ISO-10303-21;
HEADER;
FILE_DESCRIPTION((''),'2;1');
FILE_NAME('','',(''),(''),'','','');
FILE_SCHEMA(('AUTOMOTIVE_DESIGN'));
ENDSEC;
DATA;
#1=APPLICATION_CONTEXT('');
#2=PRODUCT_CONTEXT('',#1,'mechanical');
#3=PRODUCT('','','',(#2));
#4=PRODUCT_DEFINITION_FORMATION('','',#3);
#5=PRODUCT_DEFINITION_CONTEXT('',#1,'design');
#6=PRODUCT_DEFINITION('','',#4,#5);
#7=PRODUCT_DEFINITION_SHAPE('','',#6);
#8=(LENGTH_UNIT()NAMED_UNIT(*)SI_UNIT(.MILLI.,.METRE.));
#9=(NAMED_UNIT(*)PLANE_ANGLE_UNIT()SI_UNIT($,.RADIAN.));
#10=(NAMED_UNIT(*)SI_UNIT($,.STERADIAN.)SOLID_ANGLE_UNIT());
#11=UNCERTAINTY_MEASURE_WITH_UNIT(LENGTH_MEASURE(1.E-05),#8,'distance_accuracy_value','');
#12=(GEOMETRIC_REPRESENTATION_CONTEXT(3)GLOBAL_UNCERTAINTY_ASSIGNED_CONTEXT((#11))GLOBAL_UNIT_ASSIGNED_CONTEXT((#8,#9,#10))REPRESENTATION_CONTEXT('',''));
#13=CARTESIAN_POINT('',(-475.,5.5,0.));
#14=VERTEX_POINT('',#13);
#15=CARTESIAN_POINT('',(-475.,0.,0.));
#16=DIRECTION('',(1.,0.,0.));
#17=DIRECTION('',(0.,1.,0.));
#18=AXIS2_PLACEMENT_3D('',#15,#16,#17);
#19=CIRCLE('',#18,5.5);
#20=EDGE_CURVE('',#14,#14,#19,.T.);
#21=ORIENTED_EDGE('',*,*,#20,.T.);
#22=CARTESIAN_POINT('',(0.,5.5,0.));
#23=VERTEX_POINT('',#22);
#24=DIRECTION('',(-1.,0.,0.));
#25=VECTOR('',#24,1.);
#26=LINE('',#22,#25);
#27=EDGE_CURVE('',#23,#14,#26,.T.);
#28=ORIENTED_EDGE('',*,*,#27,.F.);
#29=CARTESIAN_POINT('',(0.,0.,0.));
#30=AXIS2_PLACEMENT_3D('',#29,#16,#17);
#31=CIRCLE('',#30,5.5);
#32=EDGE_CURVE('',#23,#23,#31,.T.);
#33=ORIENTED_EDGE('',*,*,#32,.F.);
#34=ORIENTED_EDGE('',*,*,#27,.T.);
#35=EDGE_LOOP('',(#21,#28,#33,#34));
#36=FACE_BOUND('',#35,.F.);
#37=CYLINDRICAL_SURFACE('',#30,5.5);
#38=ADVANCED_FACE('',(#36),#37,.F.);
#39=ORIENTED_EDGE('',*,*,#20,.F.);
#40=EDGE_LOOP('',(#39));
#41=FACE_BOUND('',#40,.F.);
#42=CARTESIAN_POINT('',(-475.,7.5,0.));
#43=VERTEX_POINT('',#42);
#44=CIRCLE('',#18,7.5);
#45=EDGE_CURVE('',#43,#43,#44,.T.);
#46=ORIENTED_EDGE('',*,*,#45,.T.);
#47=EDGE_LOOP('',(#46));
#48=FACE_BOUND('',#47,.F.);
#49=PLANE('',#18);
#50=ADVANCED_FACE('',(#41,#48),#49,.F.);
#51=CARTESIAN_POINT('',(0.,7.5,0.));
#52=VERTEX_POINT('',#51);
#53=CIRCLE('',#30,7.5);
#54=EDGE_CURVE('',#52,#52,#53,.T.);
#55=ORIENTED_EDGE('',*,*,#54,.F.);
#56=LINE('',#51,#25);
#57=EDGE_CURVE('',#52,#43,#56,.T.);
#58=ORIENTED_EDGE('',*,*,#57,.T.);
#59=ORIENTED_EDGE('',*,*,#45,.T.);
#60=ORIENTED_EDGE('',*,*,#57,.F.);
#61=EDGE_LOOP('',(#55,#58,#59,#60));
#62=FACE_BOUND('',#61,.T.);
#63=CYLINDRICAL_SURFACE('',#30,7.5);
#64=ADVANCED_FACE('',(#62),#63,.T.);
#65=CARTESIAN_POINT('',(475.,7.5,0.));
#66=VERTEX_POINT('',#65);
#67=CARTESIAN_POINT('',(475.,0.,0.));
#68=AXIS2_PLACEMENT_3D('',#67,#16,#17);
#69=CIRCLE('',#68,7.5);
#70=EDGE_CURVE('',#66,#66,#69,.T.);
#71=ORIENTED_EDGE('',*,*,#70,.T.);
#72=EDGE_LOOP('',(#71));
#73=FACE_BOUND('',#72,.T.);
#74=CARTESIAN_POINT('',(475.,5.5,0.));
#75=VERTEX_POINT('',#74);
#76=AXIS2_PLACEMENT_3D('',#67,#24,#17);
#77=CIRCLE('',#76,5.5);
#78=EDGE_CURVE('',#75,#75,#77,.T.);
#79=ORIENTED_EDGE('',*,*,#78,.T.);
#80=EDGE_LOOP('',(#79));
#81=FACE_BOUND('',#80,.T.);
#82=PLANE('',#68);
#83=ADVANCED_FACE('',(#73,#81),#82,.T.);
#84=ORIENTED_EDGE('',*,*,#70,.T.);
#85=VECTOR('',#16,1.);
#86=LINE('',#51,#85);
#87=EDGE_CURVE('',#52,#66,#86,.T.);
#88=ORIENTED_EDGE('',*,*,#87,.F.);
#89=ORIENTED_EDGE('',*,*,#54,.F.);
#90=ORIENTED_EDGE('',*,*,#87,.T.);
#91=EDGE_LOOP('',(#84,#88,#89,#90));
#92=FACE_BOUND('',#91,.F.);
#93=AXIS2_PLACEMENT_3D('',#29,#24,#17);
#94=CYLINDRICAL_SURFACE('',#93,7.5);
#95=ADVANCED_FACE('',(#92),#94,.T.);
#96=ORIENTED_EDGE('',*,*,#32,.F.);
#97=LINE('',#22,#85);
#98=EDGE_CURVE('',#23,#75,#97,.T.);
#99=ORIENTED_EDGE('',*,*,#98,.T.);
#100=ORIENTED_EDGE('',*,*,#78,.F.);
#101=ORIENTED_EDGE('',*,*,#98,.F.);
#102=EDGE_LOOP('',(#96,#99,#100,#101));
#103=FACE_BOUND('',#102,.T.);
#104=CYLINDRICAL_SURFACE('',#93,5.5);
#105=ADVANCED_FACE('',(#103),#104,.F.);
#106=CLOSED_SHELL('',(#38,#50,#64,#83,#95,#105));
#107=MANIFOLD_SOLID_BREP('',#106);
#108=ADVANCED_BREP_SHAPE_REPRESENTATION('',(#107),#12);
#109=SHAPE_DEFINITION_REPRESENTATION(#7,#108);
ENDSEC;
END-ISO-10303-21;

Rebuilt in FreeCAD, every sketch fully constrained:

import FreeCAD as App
import Part
import Sketcher

V = App.Vector
Q = App.Units.Quantity


def faces_at(feature, points):
    """Names of the faces that lie closest to the given points."""
    faces = feature.Shape.Faces
    near = lambda p: min(range(len(faces)), key=lambda i: faces[i].distToShape(Part.Vertex(*p))[0])
    return sorted({f"Face{near(p) + 1}" for p in points})

doc = App.newDocument("Part")
params = doc.addObject("Spreadsheet::Sheet", "Params")
for row, (alias, value) in enumerate([
    ("sketch1_diameter", "15 mm"),
    ("pad1_length", "950 mm"),
    ("thickness_wall", "2 mm"),
], start=1):
    params.set(f"A{row}", alias)
    params.set(f"B{row}", "=" + value)
    params.setAlias(f"B{row}", alias)

body = doc.addObject("PartDesign::Body", "Body")

# Sketch on YZ plane
sketch1 = doc.addObject("Sketcher::SketchObject", "Sketch")
body.addObject(sketch1)
sketch1.AttachmentSupport = (doc.YZ_Plane, [""])
sketch1.MapMode = "FlatFace"
sketch1.addGeometry(Part.Circle(V(0, 0, 0), V(0, 0, 1), 8), False)
sketch1.addConstraint([
    Sketcher.Constraint("Coincident", 0, 3, -1, 1),
    Sketcher.Constraint("Diameter", 0, Q("15 mm")),
])
sketch1.setExpression("Constraints[1]", "Params.sketch1_diameter")
pad1 = doc.addObject("PartDesign::Pad", "Pad")
body.addObject(pad1)
pad1.Profile = sketch1
pad1.setExpression("Length", "Params.pad1_length")
pad1.Midplane = True
doc.recompute()

thickness = doc.addObject("PartDesign::Thickness", "Thickness")
body.addObject(thickness)
thickness.Base = (pad1, faces_at(pad1, [(475, 1.206, -0.297), (-475, 1.206, -0.297)]))
thickness.setExpression("Value", "Params.thickness_wall")
thickness.Reversed = True
thickness.Join = "Intersection"

doc.recompute()
